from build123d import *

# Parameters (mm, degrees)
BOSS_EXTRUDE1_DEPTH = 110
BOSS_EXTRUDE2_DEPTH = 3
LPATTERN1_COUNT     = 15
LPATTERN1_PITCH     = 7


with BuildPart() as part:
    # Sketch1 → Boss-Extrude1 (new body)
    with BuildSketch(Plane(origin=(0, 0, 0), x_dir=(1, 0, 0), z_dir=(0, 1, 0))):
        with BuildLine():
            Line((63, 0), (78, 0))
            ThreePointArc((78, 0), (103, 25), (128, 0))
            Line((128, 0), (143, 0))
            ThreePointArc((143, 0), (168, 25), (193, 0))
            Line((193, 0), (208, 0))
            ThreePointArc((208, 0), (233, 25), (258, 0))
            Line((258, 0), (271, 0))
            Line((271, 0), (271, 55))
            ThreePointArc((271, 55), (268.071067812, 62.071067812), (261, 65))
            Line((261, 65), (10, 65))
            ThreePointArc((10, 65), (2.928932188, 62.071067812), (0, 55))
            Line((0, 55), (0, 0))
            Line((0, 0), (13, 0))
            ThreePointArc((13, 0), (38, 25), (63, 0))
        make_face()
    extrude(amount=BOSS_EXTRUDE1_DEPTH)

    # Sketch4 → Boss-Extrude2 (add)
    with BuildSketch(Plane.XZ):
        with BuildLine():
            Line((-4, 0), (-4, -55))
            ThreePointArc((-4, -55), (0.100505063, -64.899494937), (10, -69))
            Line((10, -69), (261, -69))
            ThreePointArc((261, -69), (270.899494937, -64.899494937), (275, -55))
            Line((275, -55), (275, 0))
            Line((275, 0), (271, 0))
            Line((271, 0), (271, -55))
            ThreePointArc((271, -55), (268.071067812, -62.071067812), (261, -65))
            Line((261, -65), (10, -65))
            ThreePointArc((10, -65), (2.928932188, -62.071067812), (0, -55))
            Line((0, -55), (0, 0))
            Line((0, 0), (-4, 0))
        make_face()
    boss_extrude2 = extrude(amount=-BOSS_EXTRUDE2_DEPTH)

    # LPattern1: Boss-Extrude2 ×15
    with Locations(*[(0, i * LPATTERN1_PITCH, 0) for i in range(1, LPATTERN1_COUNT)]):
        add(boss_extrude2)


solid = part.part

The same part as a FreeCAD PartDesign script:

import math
import FreeCAD as App
import Part
import Sketcher
from FreeCAD import Vector
Q = App.Units.Quantity

doc = App.newDocument("Part")
body = doc.addObject("PartDesign::Body", "Body")

sketch1 = doc.addObject("Sketcher::SketchObject", "Sketch")
body.addObject(sketch1)
sketch1.AttachmentSupport = (doc.XZ_Plane, [""])
sketch1.MapMode = "FlatFace"
sketch1.addGeometry(Part.LineSegment(Vector(63, 0, 0), Vector(78, 0, 0)), False)
sketch1.addGeometry(Part.ArcOfCircle(Part.Circle(Vector(103, 0, 0), Vector(0, 0, 1), 25), math.radians(180), math.radians(360)), False)
sketch1.addGeometry(Part.LineSegment(Vector(128, 0, 0), Vector(143, 0, 0)), False)
sketch1.addGeometry(Part.ArcOfCircle(Part.Circle(Vector(168, 0, 0), Vector(0, 0, 1), 25), math.radians(180), math.radians(360)), False)
sketch1.addGeometry(Part.LineSegment(Vector(193, 0, 0), Vector(208, 0, 0)), False)
sketch1.addGeometry(Part.ArcOfCircle(Part.Circle(Vector(233, 0, 0), Vector(0, 0, 1), 25), math.radians(180), math.radians(360)), False)
sketch1.addGeometry(Part.LineSegment(Vector(258, 0, 0), Vector(271, 0, 0)), False)
sketch1.addGeometry(Part.LineSegment(Vector(271, 0, 0), Vector(271, -55, 0)), False)
sketch1.addGeometry(Part.ArcOfCircle(Part.Circle(Vector(261, -55, 0), Vector(0, 0, 1), 10), math.radians(-90), math.radians(0)), False)
sketch1.addGeometry(Part.LineSegment(Vector(261, -65, 0), Vector(10, -65, 0)), False)
sketch1.addGeometry(Part.ArcOfCircle(Part.Circle(Vector(10, -55, 0), Vector(0, 0, 1), 10), math.radians(180), math.radians(270)), False)
sketch1.addGeometry(Part.LineSegment(Vector(0, -55, 0), Vector(0, 0, 0)), False)
sketch1.addGeometry(Part.LineSegment(Vector(0, 0, 0), Vector(13, 0, 0)), False)
sketch1.addGeometry(Part.ArcOfCircle(Part.Circle(Vector(38, 0, 0), Vector(0, 0, 1), 25), math.radians(180), math.radians(360)), False)
sketch1.addConstraint(Sketcher.Constraint("Coincident", 0, 2, 1, 1))
sketch1.addConstraint(Sketcher.Constraint("Coincident", 1, 2, 2, 1))
sketch1.addConstraint(Sketcher.Constraint("Coincident", 2, 2, 3, 1))
sketch1.addConstraint(Sketcher.Constraint("Coincident", 3, 2, 4, 1))
sketch1.addConstraint(Sketcher.Constraint("Coincident", 4, 2, 5, 1))
sketch1.addConstraint(Sketcher.Constraint("Coincident", 5, 2, 6, 1))
sketch1.addConstraint(Sketcher.Constraint("Coincident", 6, 2, 7, 1))
sketch1.addConstraint(Sketcher.Constraint("Tangent", 7, 2, 8, 2))
sketch1.addConstraint(Sketcher.Constraint("Tangent", 8, 1, 9, 1))
sketch1.addConstraint(Sketcher.Constraint("Tangent", 9, 2, 10, 2))
sketch1.addConstraint(Sketcher.Constraint("Tangent", 10, 1, 11, 1))
sketch1.addConstraint(Sketcher.Constraint("Coincident", 11, 2, 12, 1))
sketch1.addConstraint(Sketcher.Constraint("Coincident", 12, 2, 13, 1))
sketch1.addConstraint(Sketcher.Constraint("Coincident", 13, 2, 0, 1))
sketch1.addConstraint(Sketcher.Constraint("Horizontal", 0))
sketch1.addConstraint(Sketcher.Constraint("Horizontal", 2))
sketch1.addConstraint(Sketcher.Constraint("Horizontal", 4))
sketch1.addConstraint(Sketcher.Constraint("Horizontal", 6))
sketch1.addConstraint(Sketcher.Constraint("Vertical", 7))
sketch1.addConstraint(Sketcher.Constraint("Horizontal", 9))
sketch1.addConstraint(Sketcher.Constraint("Vertical", 11))
sketch1.addConstraint(Sketcher.Constraint("Horizontal", 12))
sketch1.addConstraint(Sketcher.Constraint("Coincident", 11, 2, -1, 1))
sketch1.addConstraint(Sketcher.Constraint("Equal", 1, 3))
sketch1.addConstraint(Sketcher.Constraint("Equal", 3, 5))
sketch1.addConstraint(Sketcher.Constraint("Equal", 8, 10))
sketch1.addConstraint(Sketcher.Constraint("Equal", 5, 13))
sketch1.addConstraint(Sketcher.Constraint("PointOnObject", 1, 3, -1))
sketch1.addConstraint(Sketcher.Constraint("PointOnObject", 3, 3, -1))
sketch1.addConstraint(Sketcher.Constraint("PointOnObject", 5, 3, -1))
sketch1.addConstraint(Sketcher.Constraint("PointOnObject", 13, 3, -1))
sketch1.addConstraint(Sketcher.Constraint("PointOnObject", 0, 2, -1))
sketch1.addConstraint(Sketcher.Constraint("PointOnObject", 1, 2, -1))
sketch1.addConstraint(Sketcher.Constraint("PointOnObject", 3, 2, -1))
sketch1.addConstraint(Sketcher.Constraint("PointOnObject", 5, 2, -1))
sketch1.addConstraint(Sketcher.Constraint("Equal", 0, 2))
sketch1.addConstraint(Sketcher.Constraint("Equal", 2, 4))
sketch1.addConstraint(Sketcher.Constraint("Equal", 6, 12))
sketch1.addConstraint(Sketcher.Constraint("Radius", 1, Q("25 mm")))
sketch1.addConstraint(Sketcher.Constraint("Radius", 8, Q("10 mm")))
sketch1.addConstraint(Sketcher.Constraint("DistanceX", 0, 1, 0, 2, Q("15 mm")))
sketch1.addConstraint(Sketcher.Constraint("DistanceX", 6, 1, 6, 2, Q("13 mm")))
sketch1.addConstraint(Sketcher.Constraint("DistanceY", 7, 2, 7, 1, Q("55 mm")))
pad1 = doc.addObject("PartDesign::Pad", "Pad")
body.addObject(pad1)
pad1.Profile = sketch1
pad1.Length = 110
pad1.Reversed = True

sketch2 = doc.addObject("Sketcher::SketchObject", "Sketch001")
body.addObject(sketch2)
sketch2.AttachmentSupport = (doc.XZ_Plane, [""])
sketch2.MapMode = "FlatFace"
sketch2.addGeometry(Part.LineSegment(Vector(-4, 0, 0), Vector(-4, -55, 0)), False)
sketch2.addGeometry(Part.ArcOfCircle(Part.Circle(Vector(10, -55, 0), Vector(0, 0, 1), 14), math.radians(180), math.radians(270)), False)
sketch2.addGeometry(Part.LineSegment(Vector(10, -69, 0), Vector(261, -69, 0)), False)
sketch2.addGeometry(Part.ArcOfCircle(Part.Circle(Vector(261, -55, 0), Vector(0, 0, 1), 14), math.radians(-90), math.radians(0)), False)
sketch2.addGeometry(Part.LineSegment(Vector(275, -55, 0), Vector(275, 0, 0)), False)
sketch2.addGeometry(Part.LineSegment(Vector(275, 0, 0), Vector(271, 0, 0)), False)
sketch2.addGeometry(Part.LineSegment(Vector(271, 0, 0), Vector(271, -55, 0)), False)
sketch2.addGeometry(Part.ArcOfCircle(Part.Circle(Vector(261, -55, 0), Vector(0, 0, 1), 10), math.radians(-90), math.radians(0)), False)
sketch2.addGeometry(Part.LineSegment(Vector(261, -65, 0), Vector(10, -65, 0)), False)
sketch2.addGeometry(Part.ArcOfCircle(Part.Circle(Vector(10, -55, 0), Vector(0, 0, 1), 10), math.radians(180), math.radians(270)), False)
sketch2.addGeometry(Part.LineSegment(Vector(0, -55, 0), Vector(0, 0, 0)), False)
sketch2.addGeometry(Part.LineSegment(Vector(0, 0, 0), Vector(-4, 0, 0)), False)
sketch2.addConstraint(Sketcher.Constraint("Tangent", 0, 2, 1, 1))
sketch2.addConstraint(Sketcher.Constraint("Tangent", 1, 2, 2, 1))
sketch2.addConstraint(Sketcher.Constraint("Tangent", 2, 2, 3, 1))
sketch2.addConstraint(Sketcher.Constraint("Tangent", 3, 2, 4, 1))
sketch2.addConstraint(Sketcher.Constraint("Coincident", 4, 2, 5, 1))
sketch2.addConstraint(Sketcher.Constraint("Coincident", 5, 2, 6, 1))
sketch2.addConstraint(Sketcher.Constraint("Tangent", 6, 2, 7, 2))
sketch2.addConstraint(Sketcher.Constraint("Tangent", 7, 1, 8, 1))
sketch2.addConstraint(Sketcher.Constraint("Tangent", 8, 2, 9, 2))
sketch2.addConstraint(Sketcher.Constraint("Tangent", 9, 1, 10, 1))
sketch2.addConstraint(Sketcher.Constraint("Coincident", 10, 2, 11, 1))
sketch2.addConstraint(Sketcher.Constraint("Coincident", 11, 2, 0, 1))
sketch2.addConstraint(Sketcher.Constraint("Vertical", 0))
sketch2.addConstraint(Sketcher.Constraint("Horizontal", 2))
sketch2.addConstraint(Sketcher.Constraint("Vertical", 4))
sketch2.addConstraint(Sketcher.Constraint("Horizontal", 5))
sketch2.addConstraint(Sketcher.Constraint("Vertical", 6))
sketch2.addConstraint(Sketcher.Constraint("Horizontal", 8))
sketch2.addConstraint(Sketcher.Constraint("Vertical", 10))
sketch2.addConstraint(Sketcher.Constraint("Horizontal", 11))
sketch2.addConstraint(Sketcher.Constraint("Coincident", 10, 2, -1, 1))
sketch2.addConstraint(Sketcher.Constraint("Coincident", 7, 3, 3, 3))
sketch2.addConstraint(Sketcher.Constraint("Coincident", 9, 3, 1, 3))
sketch2.addConstraint(Sketcher.Constraint("Equal", 1, 3))
sketch2.addConstraint(Sketcher.Constraint("PointOnObject", 4, 2, -1))
sketch2.addConstraint(Sketcher.Constraint("Radius", 1, Q("14 mm")))
sketch2.addConstraint(Sketcher.Constraint("Radius", 7, Q("10 mm")))
sketch2.addConstraint(Sketcher.Constraint("DistanceX", 2, 1, 2, 2, Q("251 mm")))
sketch2.addConstraint(Sketcher.Constraint("DistanceY", 0, 2, 0, 1, Q("55 mm")))
pad2 = doc.addObject("PartDesign::Pad", "Pad001")
body.addObject(pad2)
pad2.Profile = sketch2
pad2.Length = 3
pad2.Reversed = True
doc.recompute()

linearpattern = doc.addObject("PartDesign::LinearPattern", "LinearPattern")
body.addObject(linearpattern)
linearpattern.Originals = [pad2]
linearpattern.Direction = (doc.Y_Axis, [""])
linearpattern.Mode = "offset"
linearpattern.Offset = 7
linearpattern.Occurrences = 15
body.Tip = linearpattern

doc.recompute()
